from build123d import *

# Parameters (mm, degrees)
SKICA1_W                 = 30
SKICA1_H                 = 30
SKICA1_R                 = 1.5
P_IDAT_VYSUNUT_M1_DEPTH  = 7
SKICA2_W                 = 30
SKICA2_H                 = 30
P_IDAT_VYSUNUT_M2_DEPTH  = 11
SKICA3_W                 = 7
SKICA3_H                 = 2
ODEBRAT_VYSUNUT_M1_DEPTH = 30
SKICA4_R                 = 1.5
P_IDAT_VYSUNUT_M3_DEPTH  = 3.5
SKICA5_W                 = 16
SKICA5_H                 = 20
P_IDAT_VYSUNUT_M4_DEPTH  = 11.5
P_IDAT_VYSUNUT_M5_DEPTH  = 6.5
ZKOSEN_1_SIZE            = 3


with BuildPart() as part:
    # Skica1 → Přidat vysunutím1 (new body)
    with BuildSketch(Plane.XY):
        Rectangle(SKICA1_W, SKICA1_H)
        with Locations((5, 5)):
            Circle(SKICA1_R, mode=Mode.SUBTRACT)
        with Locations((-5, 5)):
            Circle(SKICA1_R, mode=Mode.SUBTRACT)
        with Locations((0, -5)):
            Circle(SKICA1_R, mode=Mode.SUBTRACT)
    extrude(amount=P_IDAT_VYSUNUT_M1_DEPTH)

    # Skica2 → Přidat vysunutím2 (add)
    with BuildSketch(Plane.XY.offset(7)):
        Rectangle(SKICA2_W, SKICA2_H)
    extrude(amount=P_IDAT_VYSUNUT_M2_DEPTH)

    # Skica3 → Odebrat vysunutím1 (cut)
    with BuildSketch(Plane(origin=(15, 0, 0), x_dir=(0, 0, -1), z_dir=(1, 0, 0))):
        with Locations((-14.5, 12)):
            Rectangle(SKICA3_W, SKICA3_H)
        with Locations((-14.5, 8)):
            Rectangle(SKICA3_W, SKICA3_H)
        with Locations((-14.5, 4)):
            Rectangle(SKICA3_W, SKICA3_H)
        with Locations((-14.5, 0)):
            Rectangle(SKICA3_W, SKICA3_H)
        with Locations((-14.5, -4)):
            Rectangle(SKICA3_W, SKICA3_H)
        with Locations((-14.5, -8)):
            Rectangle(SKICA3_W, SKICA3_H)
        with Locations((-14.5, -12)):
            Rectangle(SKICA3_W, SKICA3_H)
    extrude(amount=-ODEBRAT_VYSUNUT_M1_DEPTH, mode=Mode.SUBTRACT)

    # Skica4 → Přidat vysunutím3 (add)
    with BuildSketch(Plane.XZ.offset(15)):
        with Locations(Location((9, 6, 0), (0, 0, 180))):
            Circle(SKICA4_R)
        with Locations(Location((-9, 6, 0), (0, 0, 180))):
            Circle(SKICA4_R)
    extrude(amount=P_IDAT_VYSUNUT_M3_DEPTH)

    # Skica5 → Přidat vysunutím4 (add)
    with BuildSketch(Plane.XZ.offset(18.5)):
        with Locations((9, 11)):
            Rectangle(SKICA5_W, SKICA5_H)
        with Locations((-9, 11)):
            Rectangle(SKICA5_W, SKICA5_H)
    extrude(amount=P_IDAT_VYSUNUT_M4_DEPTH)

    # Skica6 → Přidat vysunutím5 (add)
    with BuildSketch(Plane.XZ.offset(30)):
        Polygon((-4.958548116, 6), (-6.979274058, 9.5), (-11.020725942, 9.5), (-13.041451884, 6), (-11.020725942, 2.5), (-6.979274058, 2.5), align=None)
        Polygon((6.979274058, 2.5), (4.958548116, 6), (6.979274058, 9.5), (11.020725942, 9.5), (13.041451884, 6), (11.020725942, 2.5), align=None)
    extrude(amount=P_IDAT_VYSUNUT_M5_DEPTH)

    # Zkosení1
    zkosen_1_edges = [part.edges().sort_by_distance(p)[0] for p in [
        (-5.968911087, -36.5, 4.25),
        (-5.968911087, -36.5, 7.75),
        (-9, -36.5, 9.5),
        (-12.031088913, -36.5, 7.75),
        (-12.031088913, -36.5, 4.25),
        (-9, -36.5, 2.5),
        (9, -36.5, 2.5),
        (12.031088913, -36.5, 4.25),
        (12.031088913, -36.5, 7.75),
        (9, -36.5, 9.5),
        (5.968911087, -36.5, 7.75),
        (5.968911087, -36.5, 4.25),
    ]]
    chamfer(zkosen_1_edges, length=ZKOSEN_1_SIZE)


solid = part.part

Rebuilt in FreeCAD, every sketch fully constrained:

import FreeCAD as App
import Part
import Sketcher

V = App.Vector
Q = App.Units.Quantity


def edges_at(feature, points):
    """Names of the edges that pass closest to the given points."""
    edges = feature.Shape.Edges
    near = lambda p: min(range(len(edges)), key=lambda i: edges[i].distToShape(Part.Vertex(*p))[0])
    return sorted({f"Edge{near(p) + 1}" for p in points})

doc = App.newDocument("Part")
body = doc.addObject("PartDesign::Body", "Body")

sketch1 = body.newObject("Sketcher::SketchObject", "Sketch")
sketch1.AttachmentSupport = (doc.getObject("XY_Plane"), [""])
sketch1.MapMode = "FlatFace"
sketch1.addGeometry(Part.LineSegment(V(-15, 15, 0), V(-15, -15, 0)), False)
sketch1.addGeometry(Part.LineSegment(V(-15, -15, 0), V(15, -15, 0)), False)
sketch1.addGeometry(Part.LineSegment(V(15, -15, 0), V(15, 15, 0)), False)
sketch1.addGeometry(Part.LineSegment(V(15, 15, 0), V(-15, 15, 0)), False)
sketch1.addGeometry(Part.Circle(V(0, -5, 0), V(0, 0, 1), 1.5), False)
sketch1.addGeometry(Part.Circle(V(-5, 5, 0), V(0, 0, 1), 1.5), False)
sketch1.addGeometry(Part.Circle(V(5, 5, 0), V(0, 0, 1), 1.5), False)
sketch1.addConstraint(Sketcher.Constraint("Coincident", 0, 2, 1, 1))
sketch1.addConstraint(Sketcher.Constraint("Coincident", 1, 2, 2, 1))
sketch1.addConstraint(Sketcher.Constraint("Coincident", 2, 2, 3, 1))
sketch1.addConstraint(Sketcher.Constraint("Coincident", 3, 2, 0, 1))
sketch1.addConstraint(Sketcher.Constraint("Vertical", 0))
sketch1.addConstraint(Sketcher.Constraint("Horizontal", 1))
sketch1.addConstraint(Sketcher.Constraint("Vertical", 2))
sketch1.addConstraint(Sketcher.Constraint("Horizontal", 3))
sketch1.addConstraint(Sketcher.Constraint("Equal", 4, 5))
sketch1.addConstraint(Sketcher.Constraint("Equal", 5, 6))
sketch1.addConstraint(Sketcher.Constraint("Symmetric", 0, 2, 2, 2, -1, 1))
sketch1.addConstraint(Sketcher.Constraint("Symmetric", 5, 3, 6, 3, -2))
sketch1.addConstraint(Sketcher.Constraint("PointOnObject", 4, 3, -2))
sketch1.addConstraint(Sketcher.Constraint("Equal", 3, 0))
sketch1.addConstraint(Sketcher.Constraint("Diameter", 4, Q("3 mm")))
sketch1.addConstraint(Sketcher.Constraint("DistanceX", 1, 1, 1, 2, Q("30 mm")))
sketch1.addConstraint(Sketcher.Constraint("DistanceY", 4, 3, -1, 1, Q("5 mm")))
sketch1.addConstraint(Sketcher.Constraint("DistanceX", 5, 3, -1, 1, Q("5 mm")))
sketch1.addConstraint(Sketcher.Constraint("DistanceY", -1, 1, 5, 3, Q("5 mm")))
pad1 = body.newObject("PartDesign::Pad", "Pad")
pad1.Profile = sketch1
pad1.Length = 7

sketch2 = body.newObject("Sketcher::SketchObject", "Sketch001")
sketch2.AttachmentSupport = (doc.getObject("XY_Plane"), [""])
sketch2.MapMode = "FlatFace"
sketch2.AttachmentOffset = App.Placement(V(0, 0, 7), App.Rotation())
sketch2.addGeometry(Part.LineSegment(V(-15, 15, 0), V(-15, -15, 0)), False)
sketch2.addGeometry(Part.LineSegment(V(-15, -15, 0), V(15, -15, 0)), False)
sketch2.addGeometry(Part.LineSegment(V(15, -15, 0), V(15, 15, 0)), False)
sketch2.addGeometry(Part.LineSegment(V(15, 15, 0), V(-15, 15, 0)), False)
sketch2.addConstraint(Sketcher.Constraint("Coincident", 0, 2, 1, 1))
sketch2.addConstraint(Sketcher.Constraint("Coincident", 1, 2, 2, 1))
sketch2.addConstraint(Sketcher.Constraint("Coincident", 2, 2, 3, 1))
sketch2.addConstraint(Sketcher.Constraint("Coincident", 3, 2, 0, 1))
sketch2.addConstraint(Sketcher.Constraint("Vertical", 0))
sketch2.addConstraint(Sketcher.Constraint("Horizontal", 1))
sketch2.addConstraint(Sketcher.Constraint("Vertical", 2))
sketch2.addConstraint(Sketcher.Constraint("Horizontal", 3))
sketch2.addConstraint(Sketcher.Constraint("Symmetric", 0, 2, 2, 2, -1, 1))
sketch2.addConstraint(Sketcher.Constraint("Equal", 3, 0))
sketch2.addConstraint(Sketcher.Constraint("DistanceX", 1, 1, 1, 2, Q("30 mm")))
pad2 = body.newObject("PartDesign::Pad", "Pad001")
pad2.Profile = sketch2
pad2.Length = 11

sketch3 = body.newObject("Sketcher::SketchObject", "Sketch002")
sketch3.AttachmentSupport = (doc.getObject("YZ_Plane"), [""])
sketch3.MapMode = "FlatFace"
sketch3.AttachmentOffset = App.Placement(V(0, 0, 15), App.Rotation())
sketch3.addGeometry(Part.LineSegment(V(13, 18, 0), V(11, 18, 0)), False)
sketch3.addGeometry(Part.LineSegment(V(11, 18, 0), V(11, 11, 0)), False)
sketch3.addGeometry(Part.LineSegment(V(11, 11, 0), V(13, 11, 0)), False)
sketch3.addGeometry(Part.LineSegment(V(13, 11, 0), V(13, 18, 0)), False)
sketch3.addGeometry(Part.LineSegment(V(9, 18, 0), V(7, 18, 0)), False)
sketch3.addGeometry(Part.LineSegment(V(7, 18, 0), V(7, 11, 0)), False)
sketch3.addGeometry(Part.LineSegment(V(7, 11, 0), V(9, 11, 0)), False)
sketch3.addGeometry(Part.LineSegment(V(9, 11, 0), V(9, 18, 0)), False)
sketch3.addGeometry(Part.LineSegment(V(5, 18, 0), V(3, 18, 0)), False)
sketch3.addGeometry(Part.LineSegment(V(3, 18, 0), V(3, 11, 0)), False)
sketch3.addGeometry(Part.LineSegment(V(3, 11, 0), V(5, 11, 0)), False)
sketch3.addGeometry(Part.LineSegment(V(5, 11, 0), V(5, 18, 0)), False)
sketch3.addGeometry(Part.LineSegment(V(1, 18, 0), V(-1, 18, 0)), False)
sketch3.addGeometry(Part.LineSegment(V(-1, 18, 0), V(-1, 11, 0)), False)
sketch3.addGeometry(Part.LineSegment(V(-1, 11, 0), V(1, 11, 0)), False)
sketch3.addGeometry(Part.LineSegment(V(1, 11, 0), V(1, 18, 0)), False)
sketch3.addGeometry(Part.LineSegment(V(-3, 18, 0), V(-5, 18, 0)), False)
sketch3.addGeometry(Part.LineSegment(V(-5, 18, 0), V(-5, 11, 0)), False)
sketch3.addGeometry(Part.LineSegment(V(-5, 11, 0), V(-3, 11, 0)), False)
sketch3.addGeometry(Part.LineSegment(V(-3, 11, 0), V(-3, 18, 0)), False)
sketch3.addGeometry(Part.LineSegment(V(-7, 18, 0), V(-9, 18, 0)), False)
sketch3.addGeometry(Part.LineSegment(V(-9, 18, 0), V(-9, 11, 0)), False)
sketch3.addGeometry(Part.LineSegment(V(-9, 11, 0), V(-7, 11, 0)), False)
sketch3.addGeometry(Part.LineSegment(V(-7, 11, 0), V(-7, 18, 0)), False)
sketch3.addGeometry(Part.LineSegment(V(-11, 18, 0), V(-13, 18, 0)), False)
sketch3.addGeometry(Part.LineSegment(V(-13, 18, 0), V(-13, 11, 0)), False)
sketch3.addGeometry(Part.LineSegment(V(-13, 11, 0), V(-11, 11, 0)), False)
sketch3.addGeometry(Part.LineSegment(V(-11, 11, 0), V(-11, 18, 0)), False)
sketch3.addConstraint(Sketcher.Constraint("Coincident", 0, 2, 1, 1))
sketch3.addConstraint(Sketcher.Constraint("Coincident", 1, 2, 2, 1))
sketch3.addConstraint(Sketcher.Constraint("Coincident", 2, 2, 3, 1))
sketch3.addConstraint(Sketcher.Constraint("Coincident", 3, 2, 0, 1))
sketch3.addConstraint(Sketcher.Constraint("Coincident", 4, 2, 5, 1))
sketch3.addConstraint(Sketcher.Constraint("Coincident", 5, 2, 6, 1))
sketch3.addConstraint(Sketcher.Constraint("Coincident", 6, 2, 7, 1))
sketch3.addConstraint(Sketcher.Constraint("Coincident", 7, 2, 4, 1))
sketch3.addConstraint(Sketcher.Constraint("Coincident", 8, 2, 9, 1))
sketch3.addConstraint(Sketcher.Constraint("Coincident", 9, 2, 10, 1))
sketch3.addConstraint(Sketcher.Constraint("Coincident", 10, 2, 11, 1))
sketch3.addConstraint(Sketcher.Constraint("Coincident", 11, 2, 8, 1))
sketch3.addConstraint(Sketcher.Constraint("Coincident", 12, 2, 13, 1))
sketch3.addConstraint(Sketcher.Constraint("Coincident", 13, 2, 14, 1))
sketch3.addConstraint(Sketcher.Constraint("Coincident", 14, 2, 15, 1))
sketch3.addConstraint(Sketcher.Constraint("Coincident", 15, 2, 12, 1))
sketch3.addConstraint(Sketcher.Constraint("Coincident", 16, 2, 17, 1))
sketch3.addConstraint(Sketcher.Constraint("Coincident", 17, 2, 18, 1))
sketch3.addConstraint(Sketcher.Constraint("Coincident", 18, 2, 19, 1))
sketch3.addConstraint(Sketcher.Constraint("Coincident", 19, 2, 16, 1))
sketch3.addConstraint(Sketcher.Constraint("Coincident", 20, 2, 21, 1))
sketch3.addConstraint(Sketcher.Constraint("Coincident", 21, 2, 22, 1))
sketch3.addConstraint(Sketcher.Constraint("Coincident", 22, 2, 23, 1))
sketch3.addConstraint(Sketcher.Constraint("Coincident", 23, 2, 20, 1))
sketch3.addConstraint(Sketcher.Constraint("Coincident", 24, 2, 25, 1))
sketch3.addConstraint(Sketcher.Constraint("Coincident", 25, 2, 26, 1))
sketch3.addConstraint(Sketcher.Constraint("Coincident", 26, 2, 27, 1))
sketch3.addConstraint(Sketcher.Constraint("Coincident", 27, 2, 24, 1))
sketch3.addConstraint(Sketcher.Constraint("Horizontal", 0))
sketch3.addConstraint(Sketcher.Constraint("Vertical", 1))
sketch3.addConstraint(Sketcher.Constraint("Horizontal", 2))
sketch3.addConstraint(Sketcher.Constraint("Vertical", 3))
sketch3.addConstraint(Sketcher.Constraint("Horizontal", 4))
sketch3.addConstraint(Sketcher.Constraint("Vertical", 5))
sketch3.addConstraint(Sketcher.Constraint("Horizontal", 6))
sketch3.addConstraint(Sketcher.Constraint("Vertical", 7))
sketch3.addConstraint(Sketcher.Constraint("Horizontal", 8))
sketch3.addConstraint(Sketcher.Constraint("Vertical", 9))
sketch3.addConstraint(Sketcher.Constraint("Horizontal", 10))
sketch3.addConstraint(Sketcher.Constraint("Vertical", 11))
sketch3.addConstraint(Sketcher.Constraint("Horizontal", 12))
sketch3.addConstraint(Sketcher.Constraint("Vertical", 13))
sketch3.addConstraint(Sketcher.Constraint("Horizontal", 14))
sketch3.addConstraint(Sketcher.Constraint("Vertical", 15))
sketch3.addConstraint(Sketcher.Constraint("Horizontal", 16))
sketch3.addConstraint(Sketcher.Constraint("Vertical", 17))
sketch3.addConstraint(Sketcher.Constraint("Horizontal", 18))
sketch3.addConstraint(Sketcher.Constraint("Vertical", 19))
sketch3.addConstraint(Sketcher.Constraint("Horizontal", 20))
sketch3.addConstraint(Sketcher.Constraint("Vertical", 21))
sketch3.addConstraint(Sketcher.Constraint("Horizontal", 22))
sketch3.addConstraint(Sketcher.Constraint("Vertical", 23))
sketch3.addConstraint(Sketcher.Constraint("Horizontal", 24))
sketch3.addConstraint(Sketcher.Constraint("Vertical", 25))
sketch3.addConstraint(Sketcher.Constraint("Horizontal", 26))
sketch3.addConstraint(Sketcher.Constraint("Vertical", 27))
sketch3.addConstraint(Sketcher.Constraint("Symmetric", 11, 2, 16, 2, -2))
sketch3.addConstraint(Sketcher.Constraint("Symmetric", 9, 2, 18, 2, -2))
sketch3.addConstraint(Sketcher.Constraint("Symmetric", 7, 2, 20, 2, -2))
sketch3.addConstraint(Sketcher.Constraint("Symmetric", 5, 2, 22, 2, -2))
sketch3.addConstraint(Sketcher.Constraint("Symmetric", 3, 2, 24, 2, -2))
sketch3.addConstraint(Sketcher.Constraint("Symmetric", 1, 2, 26, 2, -2))
sketch3.addConstraint(Sketcher.Constraint("Horizontal", 3, 2, 4, 2))
sketch3.addConstraint(Sketcher.Constraint("Horizontal", 2, 2, 5, 2))
sketch3.addConstraint(Sketcher.Constraint("Horizontal", 7, 2, 8, 2))
sketch3.addConstraint(Sketcher.Constraint("Horizontal", 6, 2, 9, 2))
sketch3.addConstraint(Sketcher.Constraint("Horizontal", 11, 2, 12, 2))
sketch3.addConstraint(Sketcher.Constraint("Horizontal", 10, 2, 13, 2))
sketch3.addConstraint(Sketcher.Constraint("Equal", 2, 4))
sketch3.addConstraint(Sketcher.Constraint("Equal", 6, 8))
sketch3.addConstraint(Sketcher.Constraint("Equal", 10, 12))
sketch3.addConstraint(Sketcher.Constraint("DistanceX", 0, 2, 0, 1, Q("2 mm")))
sketch3.addConstraint(Sketcher.Constraint("DistanceY", 1, 2, 1, 1, Q("7 mm")))
sketch3.addConstraint(Sketcher.Constraint("DistanceX", -1, 1, 0, 2, Q("11 mm")))
sketch3.addConstraint(Sketcher.Constraint("DistanceY", -1, 1, 0, 2, Q("18 mm")))
sketch3.addConstraint(Sketcher.Constraint("DistanceX", -1, 1, 4, 2, Q("7 mm")))
sketch3.addConstraint(Sketcher.Constraint("DistanceX", -1, 1, 8, 2, Q("3 mm")))
sketch3.addConstraint(Sketcher.Constraint("DistanceX", 12, 2, -1, 1, Q("1 mm")))
pocket1 = body.newObject("PartDesign::Pocket", "Pocket")
pocket1.Profile = sketch3
pocket1.Length = 30

sketch4 = body.newObject("Sketcher::SketchObject", "Sketch003")
sketch4.AttachmentSupport = (doc.getObject("XZ_Plane"), [""])
sketch4.MapMode = "FlatFace"
sketch4.AttachmentOffset = App.Placement(V(0, 0, 15), App.Rotation())
sketch4.addGeometry(Part.Circle(V(9, 6, 0), V(0, 0, 1), 1.5), False)
sketch4.addGeometry(Part.Circle(V(-9, 6, 0), V(0, 0, 1), 1.5), False)
sketch4.addConstraint(Sketcher.Constraint("Equal", 0, 1))
sketch4.addConstraint(Sketcher.Constraint("Symmetric", 0, 3, 1, 3, -2))
sketch4.addConstraint(Sketcher.Constraint("Diameter", 0, Q("3 mm")))
sketch4.addConstraint(Sketcher.Constraint("DistanceX", -1, 1, 0, 3, Q("9 mm")))
sketch4.addConstraint(Sketcher.Constraint("DistanceY", -1, 1, 0, 3, Q("6 mm")))
pad3 = body.newObject("PartDesign::Pad", "Pad002")
pad3.Profile = sketch4
pad3.Length = 3.5

sketch5 = body.newObject("Sketcher::SketchObject", "Sketch004")
sketch5.AttachmentSupport = (doc.getObject("XZ_Plane"), [""])
sketch5.MapMode = "FlatFace"
sketch5.AttachmentOffset = App.Placement(V(0, 0, 18.5), App.Rotation())
sketch5.addGeometry(Part.LineSegment(V(1, 21, 0), V(1, 1, 0)), False)
sketch5.addGeometry(Part.LineSegment(V(1, 1, 0), V(17, 1, 0)), False)
sketch5.addGeometry(Part.LineSegment(V(17, 1, 0), V(17, 21, 0)), False)
sketch5.addGeometry(Part.LineSegment(V(17, 21, 0), V(1, 21, 0)), False)
sketch5.addGeometry(Part.LineSegment(V(-17, 21, 0), V(-17, 1, 0)), False)
sketch5.addGeometry(Part.LineSegment(V(-17, 1, 0), V(-1, 1, 0)), False)
sketch5.addGeometry(Part.LineSegment(V(-1, 1, 0), V(-1, 21, 0)), False)
sketch5.addGeometry(Part.LineSegment(V(-1, 21, 0), V(-17, 21, 0)), False)
sketch5.addConstraint(Sketcher.Constraint("Coincident", 0, 2, 1, 1))
sketch5.addConstraint(Sketcher.Constraint("Coincident", 1, 2, 2, 1))
sketch5.addConstraint(Sketcher.Constraint("Coincident", 2, 2, 3, 1))
sketch5.addConstraint(Sketcher.Constraint("Coincident", 3, 2, 0, 1))
sketch5.addConstraint(Sketcher.Constraint("Coincident", 4, 2, 5, 1))
sketch5.addConstraint(Sketcher.Constraint("Coincident", 5, 2, 6, 1))
sketch5.addConstraint(Sketcher.Constraint("Coincident", 6, 2, 7, 1))
sketch5.addConstraint(Sketcher.Constraint("Coincident", 7, 2, 4, 1))
sketch5.addConstraint(Sketcher.Constraint("Vertical", 0))
sketch5.addConstraint(Sketcher.Constraint("Horizontal", 1))
sketch5.addConstraint(Sketcher.Constraint("Vertical", 2))
sketch5.addConstraint(Sketcher.Constraint("Horizontal", 3))
sketch5.addConstraint(Sketcher.Constraint("Vertical", 4))
sketch5.addConstraint(Sketcher.Constraint("Horizontal", 5))
sketch5.addConstraint(Sketcher.Constraint("Vertical", 6))
sketch5.addConstraint(Sketcher.Constraint("Horizontal", 7))
sketch5.addConstraint(Sketcher.Constraint("Symmetric", 1, 2, 4, 2, -2))
sketch5.addConstraint(Sketcher.Constraint("Symmetric", 3, 2, 6, 2, -2))
sketch5.addConstraint(Sketcher.Constraint("DistanceX", 1, 1, 1, 2, Q("16 mm")))
sketch5.addConstraint(Sketcher.Constraint("DistanceY", 0, 2, 0, 1, Q("20 mm")))
sketch5.addConstraint(Sketcher.Constraint("DistanceX", -1, 1, 0, 2, Q("1 mm")))
sketch5.addConstraint(Sketcher.Constraint("DistanceY", -1, 1, 0, 2, Q("1 mm")))
pad4 = body.newObject("PartDesign::Pad", "Pad003")
pad4.Profile = sketch5
pad4.Length = 11.5

sketch6 = body.newObject("Sketcher::SketchObject", "Sketch005")
sketch6.AttachmentSupport = (doc.getObject("XZ_Plane"), [""])
sketch6.MapMode = "FlatFace"
sketch6.AttachmentOffset = App.Placement(V(0, 0, 30), App.Rotation())
sketch6.addGeometry(Part.LineSegment(V(-5, 6, 0), V(-7, 9.5, 0)), False)
sketch6.addGeometry(Part.LineSegment(V(-7, 9.5, 0), V(-11, 9.5, 0)), False)
sketch6.addGeometry(Part.LineSegment(V(-11, 9.5, 0), V(-13, 6, 0)), False)
sketch6.addGeometry(Part.LineSegment(V(-13, 6, 0), V(-11, 2.5, 0)), False)
sketch6.addGeometry(Part.LineSegment(V(-11, 2.5, 0), V(-7, 2.5, 0)), False)
sketch6.addGeometry(Part.LineSegment(V(-7, 2.5, 0), V(-5, 6, 0)), False)
sketch6.addGeometry(Part.LineSegment(V(5, 6, 0), V(7, 2.5, 0)), False)
sketch6.addGeometry(Part.LineSegment(V(7, 2.5, 0), V(11, 2.5, 0)), False)
sketch6.addGeometry(Part.LineSegment(V(11, 2.5, 0), V(13, 6, 0)), False)
sketch6.addGeometry(Part.LineSegment(V(13, 6, 0), V(11, 9.5, 0)), False)
sketch6.addGeometry(Part.LineSegment(V(11, 9.5, 0), V(7, 9.5, 0)), False)
sketch6.addGeometry(Part.LineSegment(V(7, 9.5, 0), V(5, 6, 0)), False)
sketch6.addConstraint(Sketcher.Constraint("Coincident", 0, 2, 1, 1))
sketch6.addConstraint(Sketcher.Constraint("Coincident", 1, 2, 2, 1))
sketch6.addConstraint(Sketcher.Constraint("Coincident", 2, 2, 3, 1))
sketch6.addConstraint(Sketcher.Constraint("Coincident", 3, 2, 4, 1))
sketch6.addConstraint(Sketcher.Constraint("Coincident", 4, 2, 5, 1))
sketch6.addConstraint(Sketcher.Constraint("Coincident", 5, 2, 0, 1))
sketch6.addConstraint(Sketcher.Constraint("Coincident", 6, 2, 7, 1))
sketch6.addConstraint(Sketcher.Constraint("Coincident", 7, 2, 8, 1))
sketch6.addConstraint(Sketcher.Constraint("Coincident", 8, 2, 9, 1))
sketch6.addConstraint(Sketcher.Constraint("Coincident", 9, 2, 10, 1))
sketch6.addConstraint(Sketcher.Constraint("Coincident", 10, 2, 11, 1))
sketch6.addConstraint(Sketcher.Constraint("Coincident", 11, 2, 6, 1))
sketch6.addConstraint(Sketcher.Constraint("Horizontal", 1))
sketch6.addConstraint(Sketcher.Constraint("Horizontal", 4))
sketch6.addConstraint(Sketcher.Constraint("Horizontal", 7))
sketch6.addConstraint(Sketcher.Constraint("Horizontal", 10))
sketch6.addConstraint(Sketcher.Constraint("Symmetric", 4, 2, 6, 2, -2))
sketch6.addConstraint(Sketcher.Constraint("Symmetric", 2, 2, 8, 2, -2))
sketch6.addConstraint(Sketcher.Constraint("Symmetric", 1, 2, 9, 2, -2))
sketch6.addConstraint(Sketcher.Constraint("Symmetric", 5, 2, 11, 2, -2))
sketch6.addConstraint(Sketcher.Constraint("Parallel", 0, 3))
sketch6.addConstraint(Sketcher.Constraint("Parallel", 2, 5))
sketch6.addConstraint(Sketcher.Constraint("Parallel", 3, 6))
sketch6.addConstraint(Sketcher.Constraint("Parallel", 5, 8))
sketch6.addConstraint(Sketcher.Constraint("Parallel", 8, 11))
sketch6.addConstraint(Sketcher.Constraint("Horizontal", 2, 2, 5, 2))
sketch6.addConstraint(Sketcher.Constraint("Vertical", 1, 2, 3, 2))
sketch6.addConstraint(Sketcher.Constraint("Angle", 0, Q("120 deg")))
sketch6.addConstraint(Sketcher.Constraint("DistanceY", -1, 1, 2, 2, Q("6 mm")))
sketch6.addConstraint(Sketcher.Constraint("DistanceY", 3, 2, 1, 2, Q("7 mm")))
sketch6.addConstraint(Sketcher.Constraint("DistanceX", 3, 2, 6, 2, Q("18 mm")))
sketch6.addConstraint(Sketcher.Constraint("DistanceX", 1, 2, 1, 1, Q("4.041452 mm")))
pad5 = body.newObject("PartDesign::Pad", "Pad004")
pad5.Profile = sketch6
pad5.Length = 6.5
doc.recompute()

chamfer = body.newObject("PartDesign::Chamfer", "Chamfer")
chamfer.Base = (pad5, edges_at(pad5, [
    (-5.969, -36.5, 4.25),
    (-5.969, -36.5, 7.75),
    (-9, -36.5, 9.5),
    (-12.031, -36.5, 7.75),
    (-12.031, -36.5, 4.25),
    (-9, -36.5, 2.5),
    (9, -36.5, 2.5),
    (12.031, -36.5, 4.25),
    (12.031, -36.5, 7.75),
    (9, -36.5, 9.5),
    (5.969, -36.5, 7.75),
    (5.969, -36.5, 4.25),
]))
chamfer.Size = 3

doc.recompute()
